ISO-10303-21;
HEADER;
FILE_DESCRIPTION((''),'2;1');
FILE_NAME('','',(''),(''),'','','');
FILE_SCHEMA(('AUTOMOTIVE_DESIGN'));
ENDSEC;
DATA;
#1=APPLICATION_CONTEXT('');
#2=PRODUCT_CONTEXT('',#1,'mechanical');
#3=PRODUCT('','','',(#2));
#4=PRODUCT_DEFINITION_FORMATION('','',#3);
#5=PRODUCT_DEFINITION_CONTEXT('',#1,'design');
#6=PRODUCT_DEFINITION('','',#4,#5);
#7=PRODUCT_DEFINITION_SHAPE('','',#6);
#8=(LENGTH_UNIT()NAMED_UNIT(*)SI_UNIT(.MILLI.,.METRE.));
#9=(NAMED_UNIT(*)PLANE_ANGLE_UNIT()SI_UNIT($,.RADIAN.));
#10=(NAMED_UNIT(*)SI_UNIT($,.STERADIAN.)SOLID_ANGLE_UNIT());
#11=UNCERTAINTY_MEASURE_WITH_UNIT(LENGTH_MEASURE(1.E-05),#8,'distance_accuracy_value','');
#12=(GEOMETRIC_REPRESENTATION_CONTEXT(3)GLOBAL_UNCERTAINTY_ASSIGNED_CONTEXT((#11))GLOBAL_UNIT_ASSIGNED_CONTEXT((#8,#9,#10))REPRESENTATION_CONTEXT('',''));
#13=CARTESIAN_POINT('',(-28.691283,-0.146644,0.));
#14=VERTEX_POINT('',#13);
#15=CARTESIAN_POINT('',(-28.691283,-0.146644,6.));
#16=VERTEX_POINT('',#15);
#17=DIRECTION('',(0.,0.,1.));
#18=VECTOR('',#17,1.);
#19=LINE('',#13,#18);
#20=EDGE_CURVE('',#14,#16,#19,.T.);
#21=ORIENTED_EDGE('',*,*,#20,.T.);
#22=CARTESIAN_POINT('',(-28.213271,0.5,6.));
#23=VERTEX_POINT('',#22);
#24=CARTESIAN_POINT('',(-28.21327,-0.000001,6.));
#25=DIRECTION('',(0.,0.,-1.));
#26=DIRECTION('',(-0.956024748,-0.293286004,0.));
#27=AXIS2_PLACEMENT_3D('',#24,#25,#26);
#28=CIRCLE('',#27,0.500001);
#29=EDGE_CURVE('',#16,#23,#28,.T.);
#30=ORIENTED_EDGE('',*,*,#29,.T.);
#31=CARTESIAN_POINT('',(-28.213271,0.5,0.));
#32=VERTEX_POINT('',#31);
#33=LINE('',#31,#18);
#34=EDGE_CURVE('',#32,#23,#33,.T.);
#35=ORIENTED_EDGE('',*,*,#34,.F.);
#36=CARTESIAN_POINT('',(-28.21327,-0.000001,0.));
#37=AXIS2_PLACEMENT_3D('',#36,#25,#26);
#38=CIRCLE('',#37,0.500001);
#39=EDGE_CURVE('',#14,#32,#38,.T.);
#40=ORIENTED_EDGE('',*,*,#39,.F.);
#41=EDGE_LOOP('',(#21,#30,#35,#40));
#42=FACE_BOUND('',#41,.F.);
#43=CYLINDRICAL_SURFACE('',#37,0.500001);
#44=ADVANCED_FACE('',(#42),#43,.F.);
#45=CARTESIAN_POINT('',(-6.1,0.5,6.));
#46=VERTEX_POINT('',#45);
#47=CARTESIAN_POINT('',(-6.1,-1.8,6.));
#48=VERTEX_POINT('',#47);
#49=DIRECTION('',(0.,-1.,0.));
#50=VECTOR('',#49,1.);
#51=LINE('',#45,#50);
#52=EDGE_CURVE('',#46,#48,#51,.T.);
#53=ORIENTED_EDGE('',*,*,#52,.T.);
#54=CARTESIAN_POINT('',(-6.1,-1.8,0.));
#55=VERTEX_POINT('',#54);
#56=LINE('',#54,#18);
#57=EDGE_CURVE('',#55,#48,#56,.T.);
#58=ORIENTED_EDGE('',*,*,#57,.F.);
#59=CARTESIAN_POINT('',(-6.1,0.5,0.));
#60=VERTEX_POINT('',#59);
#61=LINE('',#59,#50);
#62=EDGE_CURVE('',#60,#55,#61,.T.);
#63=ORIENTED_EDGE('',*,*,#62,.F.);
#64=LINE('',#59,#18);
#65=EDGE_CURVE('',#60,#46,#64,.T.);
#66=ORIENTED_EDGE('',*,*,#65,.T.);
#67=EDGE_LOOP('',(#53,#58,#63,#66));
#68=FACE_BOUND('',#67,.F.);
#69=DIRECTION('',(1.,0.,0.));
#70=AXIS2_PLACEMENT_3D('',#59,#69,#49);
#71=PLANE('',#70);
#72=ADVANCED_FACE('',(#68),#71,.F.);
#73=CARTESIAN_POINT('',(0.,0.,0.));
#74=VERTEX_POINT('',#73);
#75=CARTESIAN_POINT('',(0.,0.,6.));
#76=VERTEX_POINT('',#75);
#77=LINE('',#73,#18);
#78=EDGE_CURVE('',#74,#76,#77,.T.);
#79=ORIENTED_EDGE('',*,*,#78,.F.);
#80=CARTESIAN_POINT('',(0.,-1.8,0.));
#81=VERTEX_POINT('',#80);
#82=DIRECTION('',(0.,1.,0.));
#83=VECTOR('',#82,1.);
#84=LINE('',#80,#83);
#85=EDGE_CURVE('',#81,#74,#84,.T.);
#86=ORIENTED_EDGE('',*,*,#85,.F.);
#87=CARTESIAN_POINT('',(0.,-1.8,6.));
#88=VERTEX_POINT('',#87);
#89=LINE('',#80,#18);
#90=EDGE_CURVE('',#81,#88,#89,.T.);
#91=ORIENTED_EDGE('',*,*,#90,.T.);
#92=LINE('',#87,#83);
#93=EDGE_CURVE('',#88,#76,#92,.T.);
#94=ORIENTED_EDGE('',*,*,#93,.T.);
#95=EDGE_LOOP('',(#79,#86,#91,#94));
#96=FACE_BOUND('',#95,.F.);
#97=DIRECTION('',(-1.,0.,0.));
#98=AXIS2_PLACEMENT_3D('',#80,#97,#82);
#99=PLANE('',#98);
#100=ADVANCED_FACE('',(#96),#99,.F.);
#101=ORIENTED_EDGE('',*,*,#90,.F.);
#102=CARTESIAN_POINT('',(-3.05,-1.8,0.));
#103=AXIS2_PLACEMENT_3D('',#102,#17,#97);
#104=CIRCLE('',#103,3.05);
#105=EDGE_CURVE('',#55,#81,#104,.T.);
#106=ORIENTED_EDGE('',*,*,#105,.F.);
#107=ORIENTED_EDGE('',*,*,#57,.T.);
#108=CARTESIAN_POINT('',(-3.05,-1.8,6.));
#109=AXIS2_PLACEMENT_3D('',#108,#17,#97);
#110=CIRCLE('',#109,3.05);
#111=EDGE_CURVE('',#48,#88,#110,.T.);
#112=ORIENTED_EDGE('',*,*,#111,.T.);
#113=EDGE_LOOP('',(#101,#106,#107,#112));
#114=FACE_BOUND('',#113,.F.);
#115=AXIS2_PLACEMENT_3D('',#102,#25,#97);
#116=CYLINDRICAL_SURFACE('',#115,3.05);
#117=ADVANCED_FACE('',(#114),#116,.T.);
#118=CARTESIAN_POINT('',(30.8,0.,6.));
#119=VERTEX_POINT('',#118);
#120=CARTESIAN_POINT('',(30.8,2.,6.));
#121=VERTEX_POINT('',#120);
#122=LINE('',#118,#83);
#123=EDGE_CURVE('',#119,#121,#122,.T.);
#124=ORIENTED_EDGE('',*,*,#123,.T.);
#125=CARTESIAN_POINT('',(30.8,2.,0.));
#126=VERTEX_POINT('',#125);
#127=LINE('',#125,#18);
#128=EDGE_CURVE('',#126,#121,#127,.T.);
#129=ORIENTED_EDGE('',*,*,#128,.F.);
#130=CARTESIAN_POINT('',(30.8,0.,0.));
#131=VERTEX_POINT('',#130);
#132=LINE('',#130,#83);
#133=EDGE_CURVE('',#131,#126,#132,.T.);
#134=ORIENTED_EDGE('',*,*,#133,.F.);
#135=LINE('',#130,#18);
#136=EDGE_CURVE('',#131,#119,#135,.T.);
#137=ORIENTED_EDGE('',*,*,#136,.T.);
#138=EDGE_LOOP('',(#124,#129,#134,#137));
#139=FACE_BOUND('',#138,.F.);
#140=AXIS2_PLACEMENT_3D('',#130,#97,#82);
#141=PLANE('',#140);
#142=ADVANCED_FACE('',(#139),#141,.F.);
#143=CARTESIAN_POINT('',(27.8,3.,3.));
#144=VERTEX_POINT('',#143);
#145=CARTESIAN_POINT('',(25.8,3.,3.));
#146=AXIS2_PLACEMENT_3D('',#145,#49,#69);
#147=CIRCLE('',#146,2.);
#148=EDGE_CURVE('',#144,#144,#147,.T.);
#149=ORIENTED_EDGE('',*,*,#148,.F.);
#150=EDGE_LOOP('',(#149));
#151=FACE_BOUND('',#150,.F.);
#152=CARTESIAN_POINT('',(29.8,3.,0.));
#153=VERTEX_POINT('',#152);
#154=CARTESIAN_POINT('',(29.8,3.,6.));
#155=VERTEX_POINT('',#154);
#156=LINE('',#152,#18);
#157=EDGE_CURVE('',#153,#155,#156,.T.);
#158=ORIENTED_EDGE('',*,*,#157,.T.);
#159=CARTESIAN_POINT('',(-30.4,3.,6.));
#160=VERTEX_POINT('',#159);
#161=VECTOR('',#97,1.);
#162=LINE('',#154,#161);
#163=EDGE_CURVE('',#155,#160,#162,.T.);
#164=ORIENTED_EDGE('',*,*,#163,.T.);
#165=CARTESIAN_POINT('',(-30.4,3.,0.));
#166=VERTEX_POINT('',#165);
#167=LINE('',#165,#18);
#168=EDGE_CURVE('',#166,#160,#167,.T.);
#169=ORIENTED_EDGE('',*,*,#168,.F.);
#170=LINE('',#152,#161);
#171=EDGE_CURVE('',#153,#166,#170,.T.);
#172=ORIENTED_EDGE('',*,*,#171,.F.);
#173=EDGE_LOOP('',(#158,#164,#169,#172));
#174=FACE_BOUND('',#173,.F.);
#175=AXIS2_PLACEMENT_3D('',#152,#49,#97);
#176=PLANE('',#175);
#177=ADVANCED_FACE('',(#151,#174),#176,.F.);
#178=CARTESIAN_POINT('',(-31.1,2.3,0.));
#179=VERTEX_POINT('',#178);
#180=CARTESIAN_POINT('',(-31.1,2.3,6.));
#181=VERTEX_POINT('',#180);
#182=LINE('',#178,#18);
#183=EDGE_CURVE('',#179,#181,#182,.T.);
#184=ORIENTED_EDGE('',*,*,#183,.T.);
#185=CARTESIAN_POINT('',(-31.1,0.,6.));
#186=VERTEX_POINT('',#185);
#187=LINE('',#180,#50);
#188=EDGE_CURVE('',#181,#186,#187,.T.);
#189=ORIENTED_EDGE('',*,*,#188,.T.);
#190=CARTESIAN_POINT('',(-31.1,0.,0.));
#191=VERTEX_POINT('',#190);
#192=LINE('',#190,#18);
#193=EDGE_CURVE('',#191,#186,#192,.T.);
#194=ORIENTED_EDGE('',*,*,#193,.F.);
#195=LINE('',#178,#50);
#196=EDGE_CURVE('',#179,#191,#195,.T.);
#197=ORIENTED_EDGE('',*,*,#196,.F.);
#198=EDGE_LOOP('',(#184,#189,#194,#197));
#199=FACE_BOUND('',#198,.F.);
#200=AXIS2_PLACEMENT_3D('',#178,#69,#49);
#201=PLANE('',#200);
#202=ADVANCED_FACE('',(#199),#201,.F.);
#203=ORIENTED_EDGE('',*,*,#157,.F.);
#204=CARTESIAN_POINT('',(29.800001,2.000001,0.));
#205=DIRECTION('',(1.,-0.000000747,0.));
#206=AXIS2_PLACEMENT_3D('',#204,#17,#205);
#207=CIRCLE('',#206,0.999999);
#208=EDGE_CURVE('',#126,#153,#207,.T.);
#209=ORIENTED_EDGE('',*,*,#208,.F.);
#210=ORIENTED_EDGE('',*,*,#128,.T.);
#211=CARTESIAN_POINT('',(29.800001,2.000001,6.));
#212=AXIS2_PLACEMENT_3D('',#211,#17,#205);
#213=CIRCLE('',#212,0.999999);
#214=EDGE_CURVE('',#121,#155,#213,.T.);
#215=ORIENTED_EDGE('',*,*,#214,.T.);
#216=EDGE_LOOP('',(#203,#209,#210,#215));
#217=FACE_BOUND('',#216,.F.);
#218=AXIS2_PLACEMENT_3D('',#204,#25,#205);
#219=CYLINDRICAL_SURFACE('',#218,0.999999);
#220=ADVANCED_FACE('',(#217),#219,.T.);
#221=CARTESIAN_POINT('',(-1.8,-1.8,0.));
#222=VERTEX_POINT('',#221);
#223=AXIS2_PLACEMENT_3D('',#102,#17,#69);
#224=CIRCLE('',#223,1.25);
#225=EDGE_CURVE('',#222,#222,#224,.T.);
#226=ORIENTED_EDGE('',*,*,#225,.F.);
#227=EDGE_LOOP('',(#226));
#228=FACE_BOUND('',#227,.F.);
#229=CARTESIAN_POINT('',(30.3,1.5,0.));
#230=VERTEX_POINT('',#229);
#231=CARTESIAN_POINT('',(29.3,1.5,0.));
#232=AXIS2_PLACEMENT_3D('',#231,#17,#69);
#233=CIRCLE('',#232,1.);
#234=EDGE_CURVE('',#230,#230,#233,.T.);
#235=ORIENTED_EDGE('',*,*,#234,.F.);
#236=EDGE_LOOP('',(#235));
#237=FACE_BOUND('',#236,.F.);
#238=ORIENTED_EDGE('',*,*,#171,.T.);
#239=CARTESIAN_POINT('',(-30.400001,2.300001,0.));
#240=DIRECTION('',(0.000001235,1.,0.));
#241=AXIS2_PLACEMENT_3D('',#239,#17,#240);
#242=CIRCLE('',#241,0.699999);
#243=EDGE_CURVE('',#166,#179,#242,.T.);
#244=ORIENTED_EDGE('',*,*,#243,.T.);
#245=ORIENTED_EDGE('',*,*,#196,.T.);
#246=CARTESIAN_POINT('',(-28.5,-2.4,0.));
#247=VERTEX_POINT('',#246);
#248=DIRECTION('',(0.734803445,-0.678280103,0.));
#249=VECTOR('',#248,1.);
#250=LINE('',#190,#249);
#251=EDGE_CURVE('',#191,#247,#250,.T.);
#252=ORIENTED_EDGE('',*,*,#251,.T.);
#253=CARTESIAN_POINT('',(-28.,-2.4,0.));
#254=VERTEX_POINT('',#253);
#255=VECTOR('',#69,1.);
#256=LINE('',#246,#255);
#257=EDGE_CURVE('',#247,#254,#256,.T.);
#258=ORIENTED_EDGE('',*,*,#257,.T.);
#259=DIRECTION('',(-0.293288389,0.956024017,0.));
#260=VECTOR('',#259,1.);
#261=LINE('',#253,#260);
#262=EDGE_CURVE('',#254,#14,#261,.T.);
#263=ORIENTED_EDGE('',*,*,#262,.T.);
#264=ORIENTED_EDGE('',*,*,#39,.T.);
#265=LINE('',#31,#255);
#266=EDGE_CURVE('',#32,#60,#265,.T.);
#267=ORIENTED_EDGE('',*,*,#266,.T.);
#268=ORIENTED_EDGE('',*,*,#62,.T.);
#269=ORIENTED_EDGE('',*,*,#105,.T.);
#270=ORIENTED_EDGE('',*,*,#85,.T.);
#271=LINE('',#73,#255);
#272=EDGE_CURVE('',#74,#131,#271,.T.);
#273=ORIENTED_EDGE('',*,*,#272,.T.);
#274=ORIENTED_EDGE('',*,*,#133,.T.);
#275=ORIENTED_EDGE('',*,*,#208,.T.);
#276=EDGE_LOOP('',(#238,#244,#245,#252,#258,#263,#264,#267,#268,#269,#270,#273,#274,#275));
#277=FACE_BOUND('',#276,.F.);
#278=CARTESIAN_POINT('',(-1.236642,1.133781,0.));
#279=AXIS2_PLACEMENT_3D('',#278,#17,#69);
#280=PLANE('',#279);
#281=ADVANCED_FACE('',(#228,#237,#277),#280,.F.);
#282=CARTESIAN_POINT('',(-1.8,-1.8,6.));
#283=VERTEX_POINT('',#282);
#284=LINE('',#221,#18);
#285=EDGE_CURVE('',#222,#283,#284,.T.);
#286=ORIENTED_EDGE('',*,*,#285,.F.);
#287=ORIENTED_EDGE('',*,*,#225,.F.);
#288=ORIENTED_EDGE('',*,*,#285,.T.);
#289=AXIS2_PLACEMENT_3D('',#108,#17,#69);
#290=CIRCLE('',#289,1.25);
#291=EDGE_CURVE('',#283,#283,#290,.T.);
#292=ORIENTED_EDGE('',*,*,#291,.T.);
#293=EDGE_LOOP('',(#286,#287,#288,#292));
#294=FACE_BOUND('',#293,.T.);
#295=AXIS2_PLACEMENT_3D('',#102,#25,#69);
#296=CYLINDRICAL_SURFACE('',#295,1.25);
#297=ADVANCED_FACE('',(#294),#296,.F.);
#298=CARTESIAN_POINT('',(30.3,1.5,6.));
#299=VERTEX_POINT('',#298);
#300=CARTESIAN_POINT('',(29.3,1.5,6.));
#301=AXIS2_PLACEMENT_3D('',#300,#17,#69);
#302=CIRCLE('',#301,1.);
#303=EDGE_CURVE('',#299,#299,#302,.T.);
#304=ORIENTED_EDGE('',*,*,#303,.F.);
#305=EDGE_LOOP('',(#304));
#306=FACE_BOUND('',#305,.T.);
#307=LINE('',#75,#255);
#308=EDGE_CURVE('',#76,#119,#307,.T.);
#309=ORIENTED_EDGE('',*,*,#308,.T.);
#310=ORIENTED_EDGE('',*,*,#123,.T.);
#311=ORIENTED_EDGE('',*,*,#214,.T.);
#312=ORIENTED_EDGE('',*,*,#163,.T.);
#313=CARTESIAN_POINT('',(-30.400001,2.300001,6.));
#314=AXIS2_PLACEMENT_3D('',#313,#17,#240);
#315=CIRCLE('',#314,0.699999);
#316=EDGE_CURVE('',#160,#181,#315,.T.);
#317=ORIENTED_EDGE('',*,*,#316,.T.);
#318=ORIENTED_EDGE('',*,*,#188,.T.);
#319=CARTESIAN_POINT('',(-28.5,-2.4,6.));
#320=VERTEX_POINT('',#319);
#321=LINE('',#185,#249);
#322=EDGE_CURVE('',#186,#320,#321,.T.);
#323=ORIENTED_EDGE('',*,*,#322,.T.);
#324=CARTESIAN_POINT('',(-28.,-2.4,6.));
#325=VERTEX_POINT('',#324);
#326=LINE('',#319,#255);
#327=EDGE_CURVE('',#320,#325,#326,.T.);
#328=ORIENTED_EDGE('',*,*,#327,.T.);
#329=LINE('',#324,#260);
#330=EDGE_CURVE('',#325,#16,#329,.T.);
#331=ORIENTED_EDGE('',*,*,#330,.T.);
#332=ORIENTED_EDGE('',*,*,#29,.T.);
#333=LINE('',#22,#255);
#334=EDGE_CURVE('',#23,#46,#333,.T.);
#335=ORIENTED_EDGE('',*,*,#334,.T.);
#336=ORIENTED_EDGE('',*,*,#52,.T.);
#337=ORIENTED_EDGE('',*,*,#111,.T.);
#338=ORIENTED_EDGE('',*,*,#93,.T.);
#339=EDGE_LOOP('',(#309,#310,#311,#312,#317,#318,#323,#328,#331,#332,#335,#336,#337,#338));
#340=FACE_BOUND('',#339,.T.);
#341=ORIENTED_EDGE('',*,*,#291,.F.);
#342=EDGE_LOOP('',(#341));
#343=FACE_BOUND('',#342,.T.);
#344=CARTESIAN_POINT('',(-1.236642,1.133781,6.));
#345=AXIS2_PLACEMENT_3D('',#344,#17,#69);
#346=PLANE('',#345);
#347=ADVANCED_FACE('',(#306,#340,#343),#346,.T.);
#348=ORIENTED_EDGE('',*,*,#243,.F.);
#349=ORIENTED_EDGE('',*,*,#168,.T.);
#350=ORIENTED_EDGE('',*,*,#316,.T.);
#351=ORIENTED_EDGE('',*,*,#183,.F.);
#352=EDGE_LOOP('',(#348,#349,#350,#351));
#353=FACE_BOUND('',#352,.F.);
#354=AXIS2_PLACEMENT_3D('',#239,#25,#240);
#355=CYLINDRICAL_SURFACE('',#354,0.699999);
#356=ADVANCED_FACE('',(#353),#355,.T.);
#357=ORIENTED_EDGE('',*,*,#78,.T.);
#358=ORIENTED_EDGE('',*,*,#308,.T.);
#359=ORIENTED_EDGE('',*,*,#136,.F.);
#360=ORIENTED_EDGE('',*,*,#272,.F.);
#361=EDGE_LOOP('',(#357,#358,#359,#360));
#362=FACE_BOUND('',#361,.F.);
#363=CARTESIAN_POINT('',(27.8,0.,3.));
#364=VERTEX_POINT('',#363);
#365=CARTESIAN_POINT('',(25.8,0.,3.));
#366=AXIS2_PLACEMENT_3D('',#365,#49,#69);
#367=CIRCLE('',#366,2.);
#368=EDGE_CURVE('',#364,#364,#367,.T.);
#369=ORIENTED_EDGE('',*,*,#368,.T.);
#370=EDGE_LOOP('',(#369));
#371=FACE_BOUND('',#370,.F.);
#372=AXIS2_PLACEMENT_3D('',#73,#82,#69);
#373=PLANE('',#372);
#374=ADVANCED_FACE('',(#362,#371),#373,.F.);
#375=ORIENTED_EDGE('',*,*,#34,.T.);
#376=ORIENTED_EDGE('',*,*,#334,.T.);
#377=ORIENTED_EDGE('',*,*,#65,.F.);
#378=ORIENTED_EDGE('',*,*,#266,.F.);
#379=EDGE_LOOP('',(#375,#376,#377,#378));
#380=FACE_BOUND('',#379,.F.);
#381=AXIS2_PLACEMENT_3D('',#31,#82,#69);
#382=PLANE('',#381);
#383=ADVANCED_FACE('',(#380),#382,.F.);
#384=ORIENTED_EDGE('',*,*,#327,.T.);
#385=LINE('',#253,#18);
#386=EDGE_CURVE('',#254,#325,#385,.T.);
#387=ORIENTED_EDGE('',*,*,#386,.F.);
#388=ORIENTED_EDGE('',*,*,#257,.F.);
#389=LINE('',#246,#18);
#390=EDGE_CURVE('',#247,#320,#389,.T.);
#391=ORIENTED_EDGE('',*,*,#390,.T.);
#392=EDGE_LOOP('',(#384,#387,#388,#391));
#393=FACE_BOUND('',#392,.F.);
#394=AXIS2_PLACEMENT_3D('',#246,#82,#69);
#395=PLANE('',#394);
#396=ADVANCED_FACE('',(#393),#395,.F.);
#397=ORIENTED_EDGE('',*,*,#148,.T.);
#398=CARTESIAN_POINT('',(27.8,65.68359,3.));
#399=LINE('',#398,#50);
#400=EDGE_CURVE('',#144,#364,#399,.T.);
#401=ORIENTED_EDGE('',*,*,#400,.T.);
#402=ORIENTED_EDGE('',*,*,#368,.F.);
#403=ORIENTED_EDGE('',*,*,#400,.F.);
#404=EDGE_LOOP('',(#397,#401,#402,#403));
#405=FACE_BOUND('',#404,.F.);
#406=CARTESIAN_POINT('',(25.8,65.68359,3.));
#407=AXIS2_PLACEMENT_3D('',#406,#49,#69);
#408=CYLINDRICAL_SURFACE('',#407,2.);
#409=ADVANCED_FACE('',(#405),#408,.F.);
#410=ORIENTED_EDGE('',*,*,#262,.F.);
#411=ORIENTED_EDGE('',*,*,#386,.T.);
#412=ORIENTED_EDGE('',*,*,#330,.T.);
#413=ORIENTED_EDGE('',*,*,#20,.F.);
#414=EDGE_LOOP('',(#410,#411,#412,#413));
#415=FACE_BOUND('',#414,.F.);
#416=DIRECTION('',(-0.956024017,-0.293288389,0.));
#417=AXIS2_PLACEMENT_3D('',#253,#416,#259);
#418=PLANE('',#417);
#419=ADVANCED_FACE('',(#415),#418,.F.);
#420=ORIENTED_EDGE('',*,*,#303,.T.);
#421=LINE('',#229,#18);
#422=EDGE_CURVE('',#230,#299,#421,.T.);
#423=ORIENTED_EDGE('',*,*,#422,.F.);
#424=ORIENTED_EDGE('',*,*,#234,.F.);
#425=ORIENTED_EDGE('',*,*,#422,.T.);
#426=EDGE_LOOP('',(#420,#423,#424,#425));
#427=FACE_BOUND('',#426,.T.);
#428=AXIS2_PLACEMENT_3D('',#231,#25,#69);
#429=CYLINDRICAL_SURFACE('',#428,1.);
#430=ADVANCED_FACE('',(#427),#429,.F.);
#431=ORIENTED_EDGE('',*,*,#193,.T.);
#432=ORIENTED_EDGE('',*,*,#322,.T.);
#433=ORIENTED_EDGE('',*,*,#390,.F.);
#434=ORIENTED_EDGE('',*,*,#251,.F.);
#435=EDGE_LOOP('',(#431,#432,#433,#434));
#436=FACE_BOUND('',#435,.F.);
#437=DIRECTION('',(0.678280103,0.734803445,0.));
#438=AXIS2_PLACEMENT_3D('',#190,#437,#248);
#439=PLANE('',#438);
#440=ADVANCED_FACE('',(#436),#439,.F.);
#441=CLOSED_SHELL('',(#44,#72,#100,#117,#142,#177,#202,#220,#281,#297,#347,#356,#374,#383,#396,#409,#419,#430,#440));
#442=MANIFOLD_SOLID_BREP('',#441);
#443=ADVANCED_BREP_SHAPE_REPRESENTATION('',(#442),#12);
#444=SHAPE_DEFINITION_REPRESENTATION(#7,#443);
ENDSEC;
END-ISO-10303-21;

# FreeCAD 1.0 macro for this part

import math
import FreeCAD as App
import Part
import Sketcher
from FreeCAD import Vector

doc = App.newDocument("Part")
body = doc.addObject("PartDesign::Body", "Body")

# Sketch on XY plane
sketch1 = doc.addObject("Sketcher::SketchObject", "Sketch")
body.addObject(sketch1)
sketch1.AttachmentSupport = (doc.XY_Plane, [""])
sketch1.MapMode = "FlatFace"
sketch1.addGeometry([
    Part.LineSegment(Vector(29.8, 3, 0), Vector(-30.4, 3, 0)),  # 0
    Part.ArcOfCircle(Part.Circle(Vector(-30.4, 2.3, 0), Vector(0, 0, 1), 0.7), math.radians(90), math.radians(180)),  # 1
    Part.LineSegment(Vector(-31.1, 2.3, 0), Vector(-31.1, 0, 0)),  # 2
    Part.LineSegment(Vector(-31.1, 0, 0), Vector(-28.5, -2.4, 0)),  # 3
    Part.LineSegment(Vector(-28.5, -2.4, 0), Vector(-28, -2.4, 0)),  # 4
    Part.LineSegment(Vector(-28, -2.4, 0), Vector(-28.7, -0.1, 0)),  # 5
    Part.ArcOfCircle(Part.Circle(Vector(-28.2, 0, 0), Vector(0, 0, 1), 0.5), math.radians(90), math.radians(197)),  # 6
    Part.LineSegment(Vector(-28.2, 0.5, 0), Vector(-6.1, 0.5, 0)),  # 7
    Part.LineSegment(Vector(-6.1, 0.5, 0), Vector(-6.1, -1.8, 0)),  # 8
    Part.ArcOfCircle(Part.Circle(Vector(-3, -1.8, 0), Vector(0, 0, 1), 3), math.radians(180), math.radians(360)),  # 9
    Part.LineSegment(Vector(0, -1.8, 0), Vector(0, 0, 0)),  # 10
    Part.LineSegment(Vector(0, 0, 0), Vector(30.8, 0, 0)),  # 11
    Part.LineSegment(Vector(30.8, 0, 0), Vector(30.8, 2, 0)),  # 12
    Part.ArcOfCircle(Part.Circle(Vector(29.8, 2, 0), Vector(0, 0, 1), 1), math.radians(0), math.radians(90)),  # 13
    Part.Circle(Vector(-3, -1.8, 0), Vector(0, 0, 1), 1.2),  # 14
    Part.Circle(Vector(29.3, 1.5, 0), Vector(0, 0, 1), 1),  # 15
], False)
sketch1.addConstraint([
    Sketcher.Constraint("Tangent", 0, 2, 1, 1),
    Sketcher.Constraint("Tangent", 1, 2, 2, 1),
    Sketcher.Constraint("Coincident", 2, 2, 3, 1),
    Sketcher.Constraint("Coincident", 3, 2, 4, 1),
    Sketcher.Constraint("Coincident", 4, 2, 5, 1),
    Sketcher.Constraint("Coincident", 5, 2, 6, 2),
    Sketcher.Constraint("Coincident", 6, 1, 7, 1),
    Sketcher.Constraint("Coincident", 7, 2, 8, 1),
    Sketcher.Constraint("Tangent", 8, 2, 9, 1),
    Sketcher.Constraint("Tangent", 9, 2, 10, 1),
    Sketcher.Constraint("Coincident", 10, 2, 11, 1),
    Sketcher.Constraint("Coincident", 11, 2, 12, 1),
    Sketcher.Constraint("Tangent", 12, 2, 13, 1),
    Sketcher.Constraint("Tangent", 13, 2, 0, 1),
    Sketcher.Constraint("Horizontal", 0),
    Sketcher.Constraint("Vertical", 2),
    Sketcher.Constraint("Horizontal", 4),
    Sketcher.Constraint("Horizontal", 7),
    Sketcher.Constraint("Vertical", 8),
    Sketcher.Constraint("Vertical", 10),
    Sketcher.Constraint("Horizontal", 11),
    Sketcher.Constraint("Vertical", 12),
    Sketcher.Constraint("Coincident", 10, 2, -1, 1),
    Sketcher.Constraint("Coincident", 14, 3, 9, 3),
    Sketcher.Constraint("Equal", 13, 15),
    Sketcher.Constraint("PointOnObject", 6, 3, -1),
    Sketcher.Constraint("PointOnObject", 2, 2, -1),
    Sketcher.Constraint("Equal", 2, 8),
    Sketcher.Constraint("Diameter", 15, 2.0),
    Sketcher.Constraint("Diameter", 14, 2.5),
    Sketcher.Constraint("Radius", 1, 0.699999),
    Sketcher.Constraint("Radius", 6, 0.500001),
    Sketcher.Constraint("DistanceY", 12, 1, 12, 2, 2.0),
    Sketcher.Constraint("Radius", 9, 3.05),
    Sketcher.Constraint("DistanceX", 0, 2, 0, 1, 60.2),
    Sketcher.Constraint("DistanceX", 4, 1, 4, 2, 0.5),
    Sketcher.Constraint("DistanceX", 11, 1, 11, 2, 30.8),
    Sketcher.Constraint("DistanceX", 4, 2, -1, 1, 28.0),
    Sketcher.Constraint("DistanceX", -1, 1, 15, 3, 29.3),
    Sketcher.Constraint("DistanceY", -1, 1, 15, 3, 1.5),
    Sketcher.Constraint("DistanceY", 3, 2, -1, 1, 2.4),
    Sketcher.Constraint("DistanceX", 7, 1, 7, 2, 22.113271),
    Sketcher.Constraint("DistanceX", 6, 3, -1, 1, 28.21327),
    Sketcher.Constraint("DistanceX", 5, 2, 6, 1, 0.478012),
])
pad1 = doc.addObject("PartDesign::Pad", "Pad")
body.addObject(pad1)
pad1.Profile = sketch1
pad1.Length = 6

# Sketch on XZ plane
sketch2 = doc.addObject("Sketcher::SketchObject", "Sketch001")
body.addObject(sketch2)
sketch2.AttachmentSupport = (doc.XZ_Plane, [""])
sketch2.MapMode = "FlatFace"
sketch2.AttachmentOffset = App.Placement(Vector(0, 0, -3), App.Rotation())
sketch2.addGeometry(Part.Circle(Vector(25.8, 3, 0), Vector(0, 0, 1), 2), False)
sketch2.addConstraint([
    Sketcher.Constraint("Diameter", 0, 4.0),
    Sketcher.Constraint("DistanceY", -1, 1, 0, 3, 3.0),
    Sketcher.Constraint("DistanceX", -1, 1, 0, 3, 25.8),
])
doc.recompute()
hole = doc.addObject("PartDesign::Hole", "Hole")
body.addObject(hole)
hole.Profile = sketch2
hole.ThreadType = "None"
hole.Diameter = 4
hole.DepthType = "ThroughAll"
hole.Reversed = True

doc.recompute()
